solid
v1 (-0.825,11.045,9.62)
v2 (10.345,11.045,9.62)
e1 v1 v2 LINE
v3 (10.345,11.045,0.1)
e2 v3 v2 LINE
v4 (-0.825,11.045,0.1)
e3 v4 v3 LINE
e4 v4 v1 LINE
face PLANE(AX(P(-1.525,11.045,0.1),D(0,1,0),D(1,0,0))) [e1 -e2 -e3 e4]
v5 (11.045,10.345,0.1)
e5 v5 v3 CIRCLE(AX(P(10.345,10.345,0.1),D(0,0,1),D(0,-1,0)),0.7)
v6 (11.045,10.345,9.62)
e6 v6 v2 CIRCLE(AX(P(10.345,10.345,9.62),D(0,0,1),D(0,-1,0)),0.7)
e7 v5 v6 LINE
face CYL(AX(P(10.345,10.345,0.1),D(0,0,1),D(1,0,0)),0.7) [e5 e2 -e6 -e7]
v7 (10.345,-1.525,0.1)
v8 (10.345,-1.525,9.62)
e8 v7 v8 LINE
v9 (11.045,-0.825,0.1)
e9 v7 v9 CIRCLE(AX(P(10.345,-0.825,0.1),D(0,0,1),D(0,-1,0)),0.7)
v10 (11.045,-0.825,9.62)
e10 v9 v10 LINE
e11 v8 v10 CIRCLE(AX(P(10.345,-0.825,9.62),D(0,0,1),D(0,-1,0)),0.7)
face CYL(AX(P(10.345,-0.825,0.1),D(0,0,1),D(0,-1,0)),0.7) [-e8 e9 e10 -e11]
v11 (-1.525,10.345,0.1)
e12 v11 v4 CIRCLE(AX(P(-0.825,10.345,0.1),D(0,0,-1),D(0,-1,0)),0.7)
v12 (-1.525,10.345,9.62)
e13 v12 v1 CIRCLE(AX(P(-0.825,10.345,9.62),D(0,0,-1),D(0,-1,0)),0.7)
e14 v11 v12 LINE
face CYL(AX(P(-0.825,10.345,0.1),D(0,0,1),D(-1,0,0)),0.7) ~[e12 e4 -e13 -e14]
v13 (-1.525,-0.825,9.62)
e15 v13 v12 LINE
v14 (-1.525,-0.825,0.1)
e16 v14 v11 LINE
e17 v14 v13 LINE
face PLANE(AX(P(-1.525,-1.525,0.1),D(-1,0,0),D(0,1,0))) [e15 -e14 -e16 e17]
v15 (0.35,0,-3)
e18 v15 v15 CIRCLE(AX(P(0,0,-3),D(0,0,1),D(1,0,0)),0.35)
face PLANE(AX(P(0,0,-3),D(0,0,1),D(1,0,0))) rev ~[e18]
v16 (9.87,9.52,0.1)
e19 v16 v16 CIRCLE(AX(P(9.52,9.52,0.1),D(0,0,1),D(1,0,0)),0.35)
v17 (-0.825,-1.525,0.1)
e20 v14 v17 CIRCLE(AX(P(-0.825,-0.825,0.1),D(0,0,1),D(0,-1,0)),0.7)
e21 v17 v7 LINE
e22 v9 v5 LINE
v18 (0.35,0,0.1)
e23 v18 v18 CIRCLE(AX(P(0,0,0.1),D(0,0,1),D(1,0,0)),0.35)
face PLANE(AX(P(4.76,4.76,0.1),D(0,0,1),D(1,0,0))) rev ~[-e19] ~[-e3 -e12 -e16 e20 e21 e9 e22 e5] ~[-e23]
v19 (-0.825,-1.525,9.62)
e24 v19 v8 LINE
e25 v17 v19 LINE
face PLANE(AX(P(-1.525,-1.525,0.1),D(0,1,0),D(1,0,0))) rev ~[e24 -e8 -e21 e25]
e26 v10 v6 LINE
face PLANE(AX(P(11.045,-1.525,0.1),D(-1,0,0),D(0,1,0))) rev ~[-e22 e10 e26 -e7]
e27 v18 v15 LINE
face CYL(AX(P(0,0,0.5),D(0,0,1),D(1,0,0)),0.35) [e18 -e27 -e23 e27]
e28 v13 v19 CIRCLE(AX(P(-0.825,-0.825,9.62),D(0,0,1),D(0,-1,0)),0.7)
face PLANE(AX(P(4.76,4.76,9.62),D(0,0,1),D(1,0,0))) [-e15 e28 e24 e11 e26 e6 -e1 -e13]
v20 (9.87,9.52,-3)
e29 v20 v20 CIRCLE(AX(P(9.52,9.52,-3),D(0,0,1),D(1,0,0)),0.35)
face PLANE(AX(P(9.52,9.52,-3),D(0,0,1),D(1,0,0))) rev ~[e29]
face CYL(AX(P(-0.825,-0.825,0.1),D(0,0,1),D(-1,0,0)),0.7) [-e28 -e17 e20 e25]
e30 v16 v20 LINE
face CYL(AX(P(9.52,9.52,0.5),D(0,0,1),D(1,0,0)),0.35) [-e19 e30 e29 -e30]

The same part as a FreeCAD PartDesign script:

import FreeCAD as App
import Part
import Sketcher


def edges_at(feature, points):
    """Names of the edges that pass closest to the given points."""
    edges = feature.Shape.Edges
    near = lambda p: min(range(len(edges)), key=lambda i: edges[i].distToShape(Part.Vertex(*p))[0])
    return sorted({f"Edge{near(p) + 1}" for p in points})


def add_polygon(sketch, points):
    """Adds a closed chain of lines whose ends are joined by coincident constraints."""
    first, n = sketch.GeometryCount, len(points)
    for a, b in zip(points, points[1:] + points[:1]):
        sketch.addGeometry(Part.LineSegment(App.Vector(*a, 0), App.Vector(*b, 0)), False)
    for i in range(n):
        sketch.addConstraint(Sketcher.Constraint("Coincident", first + i, 2, first + (i + 1) % n, 1))

doc = App.newDocument("Part")
params = doc.addObject("Spreadsheet::Sheet", "Params")
for row, (alias, value) in enumerate([
    ("sketch1_width", "12.57 mm"),
    ("pad1_length", "9.52 mm"),
    ("fillet_radius", "0.7 mm"),
    ("sketch2_diameter", "0.7 mm"),
    ("pad2_length", "3.5 mm"),
], start=1):
    params.set(f"A{row}", alias)
    params.set(f"B{row}", "=" + value)
    params.setAlias(f"B{row}", alias)

body = doc.addObject("PartDesign::Body", "Body")

sketch1 = body.newObject("Sketcher::SketchObject", "Sketch")
sketch1.AttachmentSupport = (doc.getObject("XY_Plane"), [""])
sketch1.MapMode = "FlatFace"
sketch1.AttachmentOffset = App.Placement(App.Vector(0, 0, 0.1), App.Rotation())
add_polygon(sketch1, [(-2, 11), (-2, -2), (11, -2), (11, 11)])
sketch1.addConstraint([
    Sketcher.Constraint("Vertical", 0),
    Sketcher.Constraint("Horizontal", 1),
    Sketcher.Constraint("Vertical", 2),
    Sketcher.Constraint("Horizontal", 3),
    Sketcher.Constraint("Equal", 3, 0),
    Sketcher.Constraint("DistanceX", 1, 1, 1, 2, 12.57),
    Sketcher.Constraint("DistanceX", 0, 2, -1, 1, 1.525),
    Sketcher.Constraint("DistanceY", 0, 2, -1, 1, 1.525),
])
sketch1.setExpression("Constraints[9]", "Params.sketch1_width")
pad1 = body.newObject("PartDesign::Pad", "Pad")
pad1.Profile = sketch1
pad1.setExpression("Length", "Params.pad1_length")
doc.recompute()

fillet = body.newObject("PartDesign::Fillet", "Fillet")
fillet.Base = (pad1, edges_at(pad1, [
    (11.045, -1.525, 4.86),
    (11.045, 11.045, 4.86),
    (-1.525, -1.525, 4.86),
    (-1.525, 11.045, 4.86),
]))
fillet.setExpression("Radius", "Params.fillet_radius")
body2 = doc.addObject("PartDesign::Body", "Body001")
body2.AllowCompound = True

sketch2 = body2.newObject("Sketcher::SketchObject", "Sketch001")
sketch2.AttachmentSupport = (doc.getObject("XY_Plane001"), [""])
sketch2.MapMode = "FlatFace"
sketch2.AttachmentOffset = App.Placement(App.Vector(0, 0, 0.5), App.Rotation())
sketch2.addGeometry([
    Part.Circle(App.Vector(0, 0, 0), App.Vector(0, 0, 1), 0.35),
    Part.Circle(App.Vector(9.52, 9.52, 0), App.Vector(0, 0, 1), 0.35),
], False)
sketch2.addConstraint([
    Sketcher.Constraint("Coincident", 0, 3, -1, 1),
    Sketcher.Constraint("Equal", 0, 1),
    Sketcher.Constraint("Diameter", 0, 0.7),
    Sketcher.Constraint("DistanceX", -1, 1, 1, 3, 9.52),
    Sketcher.Constraint("DistanceY", -1, 1, 1, 3, 9.52),
])
sketch2.setExpression("Constraints[2]", "Params.sketch2_diameter")
pad2 = body2.newObject("PartDesign::Pad", "Pad001")
pad2.Profile = sketch2
pad2.setExpression("Length", "Params.pad2_length")
pad2.Reversed = True
doc.recompute()

boolean = body2.newObject("PartDesign::Boolean", "Boolean")
boolean.Type = "Fuse"
boolean.addObjects([body])

doc.recompute()
